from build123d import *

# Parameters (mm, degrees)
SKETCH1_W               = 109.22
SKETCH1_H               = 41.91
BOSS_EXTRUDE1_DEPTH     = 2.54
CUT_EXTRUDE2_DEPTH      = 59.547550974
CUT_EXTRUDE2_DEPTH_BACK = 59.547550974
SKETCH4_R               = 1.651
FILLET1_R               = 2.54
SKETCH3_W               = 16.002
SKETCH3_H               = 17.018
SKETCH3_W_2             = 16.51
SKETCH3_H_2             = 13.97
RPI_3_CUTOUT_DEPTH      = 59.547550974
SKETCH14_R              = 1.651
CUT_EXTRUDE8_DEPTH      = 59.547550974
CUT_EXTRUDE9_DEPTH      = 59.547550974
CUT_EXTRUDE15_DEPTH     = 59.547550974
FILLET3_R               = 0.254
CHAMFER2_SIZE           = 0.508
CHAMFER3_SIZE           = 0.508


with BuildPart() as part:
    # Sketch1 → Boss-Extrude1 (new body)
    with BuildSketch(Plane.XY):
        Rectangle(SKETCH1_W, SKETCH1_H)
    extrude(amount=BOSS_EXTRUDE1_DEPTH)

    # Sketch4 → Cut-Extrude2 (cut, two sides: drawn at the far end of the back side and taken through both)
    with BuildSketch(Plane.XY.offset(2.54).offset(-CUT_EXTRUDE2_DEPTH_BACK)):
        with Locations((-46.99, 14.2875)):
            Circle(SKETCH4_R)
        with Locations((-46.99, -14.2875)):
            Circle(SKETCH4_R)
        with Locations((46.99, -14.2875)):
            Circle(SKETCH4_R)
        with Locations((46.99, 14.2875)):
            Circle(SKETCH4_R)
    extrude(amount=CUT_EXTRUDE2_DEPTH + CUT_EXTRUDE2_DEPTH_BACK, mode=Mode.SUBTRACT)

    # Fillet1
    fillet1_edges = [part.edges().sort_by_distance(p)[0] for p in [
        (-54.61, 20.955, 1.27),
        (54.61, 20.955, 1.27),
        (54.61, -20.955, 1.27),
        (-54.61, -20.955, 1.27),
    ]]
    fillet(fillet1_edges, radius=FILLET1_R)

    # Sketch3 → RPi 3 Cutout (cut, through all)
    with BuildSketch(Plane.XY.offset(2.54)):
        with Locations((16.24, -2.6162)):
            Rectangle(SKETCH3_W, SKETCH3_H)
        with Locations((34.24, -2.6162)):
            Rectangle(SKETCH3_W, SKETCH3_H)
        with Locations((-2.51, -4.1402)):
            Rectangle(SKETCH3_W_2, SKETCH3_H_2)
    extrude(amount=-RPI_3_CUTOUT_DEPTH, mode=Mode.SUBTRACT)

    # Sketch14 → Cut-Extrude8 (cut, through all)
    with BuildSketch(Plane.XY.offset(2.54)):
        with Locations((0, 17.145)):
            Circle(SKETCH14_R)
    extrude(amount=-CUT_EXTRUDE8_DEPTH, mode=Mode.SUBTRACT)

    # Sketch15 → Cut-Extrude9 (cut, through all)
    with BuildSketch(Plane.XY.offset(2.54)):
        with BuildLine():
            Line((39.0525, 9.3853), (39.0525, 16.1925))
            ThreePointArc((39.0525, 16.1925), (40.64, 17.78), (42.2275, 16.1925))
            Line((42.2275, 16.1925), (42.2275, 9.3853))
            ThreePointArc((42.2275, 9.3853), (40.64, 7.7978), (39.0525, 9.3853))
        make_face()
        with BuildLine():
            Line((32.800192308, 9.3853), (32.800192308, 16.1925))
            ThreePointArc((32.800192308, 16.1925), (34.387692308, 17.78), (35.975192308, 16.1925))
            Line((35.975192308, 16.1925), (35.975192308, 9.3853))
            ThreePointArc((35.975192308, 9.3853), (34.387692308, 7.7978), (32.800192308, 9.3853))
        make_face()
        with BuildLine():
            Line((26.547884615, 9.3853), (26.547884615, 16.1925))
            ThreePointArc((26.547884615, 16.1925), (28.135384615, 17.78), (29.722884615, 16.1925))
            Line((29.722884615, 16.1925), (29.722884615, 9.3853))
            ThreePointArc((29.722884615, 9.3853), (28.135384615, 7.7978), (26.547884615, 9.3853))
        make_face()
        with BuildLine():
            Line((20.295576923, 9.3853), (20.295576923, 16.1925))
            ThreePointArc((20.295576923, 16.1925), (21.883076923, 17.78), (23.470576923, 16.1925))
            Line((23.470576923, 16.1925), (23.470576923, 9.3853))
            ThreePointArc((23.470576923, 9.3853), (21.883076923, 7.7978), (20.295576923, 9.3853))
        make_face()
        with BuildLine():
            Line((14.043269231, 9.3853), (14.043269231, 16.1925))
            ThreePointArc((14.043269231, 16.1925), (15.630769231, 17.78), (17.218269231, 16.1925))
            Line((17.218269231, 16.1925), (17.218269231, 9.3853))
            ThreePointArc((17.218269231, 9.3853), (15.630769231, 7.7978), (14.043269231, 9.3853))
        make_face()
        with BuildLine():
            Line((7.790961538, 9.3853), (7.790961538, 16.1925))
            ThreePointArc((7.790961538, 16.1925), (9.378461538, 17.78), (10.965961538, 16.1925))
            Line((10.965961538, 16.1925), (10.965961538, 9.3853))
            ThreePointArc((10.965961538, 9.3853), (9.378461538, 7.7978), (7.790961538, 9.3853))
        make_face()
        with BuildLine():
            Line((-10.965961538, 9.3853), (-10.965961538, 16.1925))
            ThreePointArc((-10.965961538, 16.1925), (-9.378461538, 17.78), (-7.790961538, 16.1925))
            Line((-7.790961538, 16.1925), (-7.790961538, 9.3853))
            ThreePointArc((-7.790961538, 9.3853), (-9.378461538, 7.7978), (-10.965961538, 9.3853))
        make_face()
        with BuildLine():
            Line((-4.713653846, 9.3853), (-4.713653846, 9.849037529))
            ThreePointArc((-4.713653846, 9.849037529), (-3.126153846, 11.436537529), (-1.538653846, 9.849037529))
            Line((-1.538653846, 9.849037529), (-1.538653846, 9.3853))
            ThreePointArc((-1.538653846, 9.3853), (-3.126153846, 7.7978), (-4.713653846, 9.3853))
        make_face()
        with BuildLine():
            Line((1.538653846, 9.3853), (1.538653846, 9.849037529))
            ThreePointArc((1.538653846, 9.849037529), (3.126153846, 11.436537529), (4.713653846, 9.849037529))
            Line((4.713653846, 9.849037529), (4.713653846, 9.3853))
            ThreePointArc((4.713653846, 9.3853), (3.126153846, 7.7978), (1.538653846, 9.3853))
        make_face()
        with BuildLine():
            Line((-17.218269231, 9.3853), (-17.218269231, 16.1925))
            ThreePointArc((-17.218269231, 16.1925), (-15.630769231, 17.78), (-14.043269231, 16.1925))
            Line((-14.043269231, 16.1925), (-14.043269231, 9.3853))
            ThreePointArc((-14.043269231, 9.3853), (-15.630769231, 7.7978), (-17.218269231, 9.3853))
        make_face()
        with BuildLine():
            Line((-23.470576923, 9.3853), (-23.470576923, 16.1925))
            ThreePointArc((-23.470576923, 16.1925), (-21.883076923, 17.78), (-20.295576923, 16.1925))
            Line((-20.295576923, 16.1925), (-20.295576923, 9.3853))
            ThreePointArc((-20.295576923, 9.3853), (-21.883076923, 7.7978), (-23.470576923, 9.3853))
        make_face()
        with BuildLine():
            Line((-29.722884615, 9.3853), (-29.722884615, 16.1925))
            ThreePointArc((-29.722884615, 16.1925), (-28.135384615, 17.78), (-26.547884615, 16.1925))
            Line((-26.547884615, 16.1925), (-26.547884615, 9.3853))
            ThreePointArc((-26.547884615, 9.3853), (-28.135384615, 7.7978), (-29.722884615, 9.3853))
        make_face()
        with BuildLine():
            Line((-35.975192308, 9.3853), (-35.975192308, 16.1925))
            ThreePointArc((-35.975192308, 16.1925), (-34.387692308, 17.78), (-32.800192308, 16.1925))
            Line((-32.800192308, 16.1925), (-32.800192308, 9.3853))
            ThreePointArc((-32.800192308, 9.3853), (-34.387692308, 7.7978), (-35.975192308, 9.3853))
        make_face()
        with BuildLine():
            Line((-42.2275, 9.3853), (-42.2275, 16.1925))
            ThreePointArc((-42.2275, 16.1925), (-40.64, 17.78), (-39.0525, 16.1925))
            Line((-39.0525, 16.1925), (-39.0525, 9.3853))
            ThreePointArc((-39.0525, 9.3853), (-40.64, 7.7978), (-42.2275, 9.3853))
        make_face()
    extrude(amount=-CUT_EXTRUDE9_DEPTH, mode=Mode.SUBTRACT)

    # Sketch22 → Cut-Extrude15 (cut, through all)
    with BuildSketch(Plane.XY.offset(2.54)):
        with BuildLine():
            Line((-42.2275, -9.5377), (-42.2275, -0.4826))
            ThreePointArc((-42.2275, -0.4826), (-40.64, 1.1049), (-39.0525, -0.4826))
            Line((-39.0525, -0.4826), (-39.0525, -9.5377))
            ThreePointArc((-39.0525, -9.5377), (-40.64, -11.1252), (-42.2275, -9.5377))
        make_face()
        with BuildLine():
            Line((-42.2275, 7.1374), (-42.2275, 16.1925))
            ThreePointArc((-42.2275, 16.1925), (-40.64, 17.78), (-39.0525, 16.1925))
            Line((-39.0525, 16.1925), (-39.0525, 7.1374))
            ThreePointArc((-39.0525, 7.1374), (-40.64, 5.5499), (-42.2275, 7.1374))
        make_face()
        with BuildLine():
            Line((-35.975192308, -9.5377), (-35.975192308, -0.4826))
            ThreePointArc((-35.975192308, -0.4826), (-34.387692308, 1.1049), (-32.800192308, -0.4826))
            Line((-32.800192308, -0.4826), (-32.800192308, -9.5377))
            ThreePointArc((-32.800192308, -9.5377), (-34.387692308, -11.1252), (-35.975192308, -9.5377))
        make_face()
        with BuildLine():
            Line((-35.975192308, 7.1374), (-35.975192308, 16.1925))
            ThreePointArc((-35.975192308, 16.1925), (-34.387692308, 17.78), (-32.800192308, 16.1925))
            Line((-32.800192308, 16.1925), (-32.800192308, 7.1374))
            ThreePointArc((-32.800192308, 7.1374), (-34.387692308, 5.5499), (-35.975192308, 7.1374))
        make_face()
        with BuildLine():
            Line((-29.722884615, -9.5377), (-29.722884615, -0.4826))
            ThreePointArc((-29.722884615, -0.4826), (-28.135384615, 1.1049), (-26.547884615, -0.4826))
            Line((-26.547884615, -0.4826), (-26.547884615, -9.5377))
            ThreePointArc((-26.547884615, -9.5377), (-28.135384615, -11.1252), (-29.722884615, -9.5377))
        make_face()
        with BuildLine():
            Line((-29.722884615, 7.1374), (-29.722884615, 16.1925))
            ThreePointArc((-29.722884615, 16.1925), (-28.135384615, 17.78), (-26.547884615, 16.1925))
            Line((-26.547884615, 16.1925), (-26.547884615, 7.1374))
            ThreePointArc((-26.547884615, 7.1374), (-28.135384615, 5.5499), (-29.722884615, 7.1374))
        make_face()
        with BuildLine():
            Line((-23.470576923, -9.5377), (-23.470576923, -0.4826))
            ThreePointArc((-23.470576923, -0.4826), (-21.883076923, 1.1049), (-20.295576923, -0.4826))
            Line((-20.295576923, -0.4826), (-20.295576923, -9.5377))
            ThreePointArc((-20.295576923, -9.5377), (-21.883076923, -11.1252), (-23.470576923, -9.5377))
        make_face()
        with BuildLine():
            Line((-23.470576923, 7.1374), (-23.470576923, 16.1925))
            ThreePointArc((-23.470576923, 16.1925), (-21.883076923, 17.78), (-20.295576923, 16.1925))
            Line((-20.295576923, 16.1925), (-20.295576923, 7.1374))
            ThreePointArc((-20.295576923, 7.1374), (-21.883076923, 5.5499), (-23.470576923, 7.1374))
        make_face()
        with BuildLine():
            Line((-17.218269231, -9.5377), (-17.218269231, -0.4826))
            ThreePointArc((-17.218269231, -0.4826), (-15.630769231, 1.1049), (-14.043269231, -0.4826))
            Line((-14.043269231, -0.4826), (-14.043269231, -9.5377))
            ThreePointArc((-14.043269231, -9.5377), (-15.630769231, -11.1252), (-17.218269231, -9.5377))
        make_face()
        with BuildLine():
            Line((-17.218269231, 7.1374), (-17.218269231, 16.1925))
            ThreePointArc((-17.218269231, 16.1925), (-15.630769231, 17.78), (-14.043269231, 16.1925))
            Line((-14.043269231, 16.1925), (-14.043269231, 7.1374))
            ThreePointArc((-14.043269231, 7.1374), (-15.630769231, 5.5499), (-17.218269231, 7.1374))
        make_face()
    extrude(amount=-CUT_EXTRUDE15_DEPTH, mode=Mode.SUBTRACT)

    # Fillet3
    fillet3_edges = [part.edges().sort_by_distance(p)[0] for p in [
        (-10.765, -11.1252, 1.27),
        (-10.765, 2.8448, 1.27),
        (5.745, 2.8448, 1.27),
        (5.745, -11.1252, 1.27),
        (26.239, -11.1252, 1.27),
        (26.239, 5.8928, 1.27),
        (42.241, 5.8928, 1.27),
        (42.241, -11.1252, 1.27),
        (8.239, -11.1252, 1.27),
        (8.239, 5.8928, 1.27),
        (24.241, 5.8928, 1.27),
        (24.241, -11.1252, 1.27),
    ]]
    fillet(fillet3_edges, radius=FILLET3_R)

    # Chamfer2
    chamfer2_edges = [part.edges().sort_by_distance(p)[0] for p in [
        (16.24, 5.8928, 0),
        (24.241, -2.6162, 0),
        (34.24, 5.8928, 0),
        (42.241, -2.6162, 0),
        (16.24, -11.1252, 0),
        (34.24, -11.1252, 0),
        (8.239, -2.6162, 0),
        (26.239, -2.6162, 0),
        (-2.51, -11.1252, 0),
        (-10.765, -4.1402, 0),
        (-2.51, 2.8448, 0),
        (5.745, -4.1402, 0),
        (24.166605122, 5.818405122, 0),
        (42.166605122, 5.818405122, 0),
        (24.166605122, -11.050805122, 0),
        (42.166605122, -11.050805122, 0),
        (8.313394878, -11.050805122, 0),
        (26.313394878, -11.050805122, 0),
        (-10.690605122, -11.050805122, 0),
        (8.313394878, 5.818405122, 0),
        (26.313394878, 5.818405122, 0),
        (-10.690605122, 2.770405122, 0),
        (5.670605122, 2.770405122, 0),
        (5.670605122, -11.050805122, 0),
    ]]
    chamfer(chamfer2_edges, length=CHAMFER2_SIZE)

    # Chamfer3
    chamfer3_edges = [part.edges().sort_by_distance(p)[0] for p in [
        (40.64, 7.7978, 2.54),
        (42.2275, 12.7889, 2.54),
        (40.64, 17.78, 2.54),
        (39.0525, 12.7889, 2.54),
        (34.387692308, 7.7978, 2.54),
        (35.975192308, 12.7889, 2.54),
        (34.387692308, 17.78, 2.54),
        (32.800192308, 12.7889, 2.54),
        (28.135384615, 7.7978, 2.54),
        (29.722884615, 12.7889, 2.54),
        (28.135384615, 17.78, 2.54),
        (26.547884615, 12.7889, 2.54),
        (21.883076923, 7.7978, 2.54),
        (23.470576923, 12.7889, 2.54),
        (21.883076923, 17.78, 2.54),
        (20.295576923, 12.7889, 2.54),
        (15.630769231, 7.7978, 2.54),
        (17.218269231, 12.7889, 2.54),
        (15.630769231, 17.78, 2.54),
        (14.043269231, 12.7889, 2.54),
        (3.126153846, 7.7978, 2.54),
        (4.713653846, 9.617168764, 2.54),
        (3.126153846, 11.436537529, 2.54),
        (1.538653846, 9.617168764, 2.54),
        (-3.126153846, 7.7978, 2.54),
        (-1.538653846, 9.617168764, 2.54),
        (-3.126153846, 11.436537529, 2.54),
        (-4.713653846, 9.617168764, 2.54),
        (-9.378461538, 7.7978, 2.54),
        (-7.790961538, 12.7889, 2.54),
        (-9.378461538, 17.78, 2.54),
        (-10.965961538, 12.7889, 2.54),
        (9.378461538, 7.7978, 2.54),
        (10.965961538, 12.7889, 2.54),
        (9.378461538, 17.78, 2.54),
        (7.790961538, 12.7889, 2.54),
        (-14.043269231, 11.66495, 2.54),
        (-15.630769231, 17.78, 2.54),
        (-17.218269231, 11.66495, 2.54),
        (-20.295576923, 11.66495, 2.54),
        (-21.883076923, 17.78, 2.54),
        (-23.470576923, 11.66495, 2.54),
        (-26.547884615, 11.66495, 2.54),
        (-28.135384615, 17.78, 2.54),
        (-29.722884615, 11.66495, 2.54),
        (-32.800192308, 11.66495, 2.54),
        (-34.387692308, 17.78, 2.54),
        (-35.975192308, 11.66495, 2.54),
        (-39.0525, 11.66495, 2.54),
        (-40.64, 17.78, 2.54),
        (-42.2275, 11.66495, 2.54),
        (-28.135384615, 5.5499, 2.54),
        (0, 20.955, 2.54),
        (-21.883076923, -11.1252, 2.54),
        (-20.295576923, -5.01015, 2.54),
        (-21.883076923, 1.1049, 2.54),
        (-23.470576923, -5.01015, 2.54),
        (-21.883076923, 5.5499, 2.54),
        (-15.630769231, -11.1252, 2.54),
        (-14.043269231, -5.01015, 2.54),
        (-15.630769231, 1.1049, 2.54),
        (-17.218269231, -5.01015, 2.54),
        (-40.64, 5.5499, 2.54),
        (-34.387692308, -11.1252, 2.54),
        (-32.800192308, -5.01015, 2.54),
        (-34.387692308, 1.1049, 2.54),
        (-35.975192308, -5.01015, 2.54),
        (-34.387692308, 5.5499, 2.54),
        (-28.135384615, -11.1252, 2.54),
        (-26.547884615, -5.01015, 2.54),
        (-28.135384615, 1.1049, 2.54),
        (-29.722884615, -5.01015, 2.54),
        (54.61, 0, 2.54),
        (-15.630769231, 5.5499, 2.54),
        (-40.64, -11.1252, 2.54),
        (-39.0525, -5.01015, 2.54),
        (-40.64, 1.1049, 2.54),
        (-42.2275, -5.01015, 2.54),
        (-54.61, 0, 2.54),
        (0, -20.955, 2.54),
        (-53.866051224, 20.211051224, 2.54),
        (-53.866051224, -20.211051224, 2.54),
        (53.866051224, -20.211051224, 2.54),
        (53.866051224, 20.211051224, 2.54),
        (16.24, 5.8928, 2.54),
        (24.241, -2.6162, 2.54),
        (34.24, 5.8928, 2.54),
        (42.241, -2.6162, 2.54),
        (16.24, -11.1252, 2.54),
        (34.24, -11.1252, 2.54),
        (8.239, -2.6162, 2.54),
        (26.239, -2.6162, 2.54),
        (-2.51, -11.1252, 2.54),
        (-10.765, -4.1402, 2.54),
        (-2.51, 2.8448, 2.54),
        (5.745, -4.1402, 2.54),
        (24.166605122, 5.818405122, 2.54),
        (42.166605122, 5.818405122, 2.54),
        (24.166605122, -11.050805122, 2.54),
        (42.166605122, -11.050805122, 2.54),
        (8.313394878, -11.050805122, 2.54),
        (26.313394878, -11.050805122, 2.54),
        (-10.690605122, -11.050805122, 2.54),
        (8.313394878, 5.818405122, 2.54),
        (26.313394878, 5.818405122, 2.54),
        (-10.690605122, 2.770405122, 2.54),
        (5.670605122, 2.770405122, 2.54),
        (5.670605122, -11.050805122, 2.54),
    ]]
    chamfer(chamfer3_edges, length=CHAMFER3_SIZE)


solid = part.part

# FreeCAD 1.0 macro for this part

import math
import FreeCAD as App
import Part
import Sketcher
Q = App.Units.Quantity


def edges_at(feature, points):
    """Names of the edges that pass closest to the given points."""
    edges = feature.Shape.Edges
    near = lambda p: min(range(len(edges)), key=lambda i: edges[i].distToShape(Part.Vertex(*p))[0])
    return sorted({f"Edge{near(p) + 1}" for p in points})

doc = App.newDocument("Part")
body = doc.addObject("PartDesign::Body", "Body")

# Sketch on XY plane
sketch1 = body.newObject("Sketcher::SketchObject", "Sketch")
sketch1.AttachmentSupport = (doc.getObject("XY_Plane"), [""])
sketch1.MapMode = "FlatFace"
sketch1.addGeometry([
    Part.LineSegment(App.Vector(-55, 21, 0), App.Vector(-55, -21, 0)),
    Part.LineSegment(App.Vector(-55, -21, 0), App.Vector(55, -21, 0)),
    Part.LineSegment(App.Vector(55, -21, 0), App.Vector(55, 21, 0)),
    Part.LineSegment(App.Vector(55, 21, 0), App.Vector(-55, 21, 0)),
], False)
sketch1.addConstraint([
    Sketcher.Constraint("Coincident", 0, 2, 1, 1),
    Sketcher.Constraint("Coincident", 1, 2, 2, 1),
    Sketcher.Constraint("Coincident", 2, 2, 3, 1),
    Sketcher.Constraint("Coincident", 3, 2, 0, 1),
    Sketcher.Constraint("Vertical", 0),
    Sketcher.Constraint("Horizontal", 1),
    Sketcher.Constraint("Vertical", 2),
    Sketcher.Constraint("Horizontal", 3),
    Sketcher.Constraint("Symmetric", 0, 2, 2, 2, -1, 1),
    Sketcher.Constraint("DistanceX", 1, 1, 1, 2, Q("4.3 in")),
    Sketcher.Constraint("DistanceY", 0, 2, 0, 1, Q("1.65 in")),
])
pad1 = body.newObject("PartDesign::Pad", "Pad")
pad1.Profile = sketch1
pad1.Length = Q("0.1 in")

# Sketch on XY plane
sketch2 = body.newObject("Sketcher::SketchObject", "Sketch001")
sketch2.AttachmentSupport = (doc.getObject("XY_Plane"), [""])
sketch2.MapMode = "FlatFace"
sketch2.AttachmentOffset = App.Placement(App.Vector(0, 0, 0.1 * 25.4), App.Rotation())
sketch2.addGeometry([
    Part.Circle(App.Vector(-47, 14.3, 0), App.Vector(0, 0, 1), 1.7),
    Part.Circle(App.Vector(-47, -14.3, 0), App.Vector(0, 0, 1), 1.7),
    Part.Circle(App.Vector(47, -14.3, 0), App.Vector(0, 0, 1), 1.7),
    Part.Circle(App.Vector(47, 14.3, 0), App.Vector(0, 0, 1), 1.7),
], False)
sketch2.addConstraint([
    Sketcher.Constraint("Equal", 0, 1),
    Sketcher.Constraint("Equal", 1, 2),
    Sketcher.Constraint("Equal", 2, 3),
    Sketcher.Constraint("Symmetric", 0, 3, 2, 3, -1, 1),
    Sketcher.Constraint("Symmetric", 1, 3, 3, 3, -1, 1),
    Sketcher.Constraint("Symmetric", 1, 3, 2, 3, -2),
    Sketcher.Constraint("Diameter", 0, Q("0.13 in")),
    Sketcher.Constraint("DistanceX", 1, 3, 2, 3, Q("3.7 in")),
    Sketcher.Constraint("DistanceY", -1, 1, 0, 3, Q("0.5625 in")),
])
pocket1 = body.newObject("PartDesign::Pocket", "Pocket")
pocket1.Profile = sketch2
pocket1.Type = "ThroughAll"
pocket1.Midplane = True
doc.recompute()

fillet = body.newObject("PartDesign::Fillet", "Fillet")
fillet.Base = (pocket1, edges_at(pocket1, [
    (-54.61, 20.955, 1.27),
    (54.61, 20.955, 1.27),
    (54.61, -20.955, 1.27),
    (-54.61, -20.955, 1.27),
]))
fillet.Radius = Q("0.1 in")

# Sketch on XY plane
sketch3 = body.newObject("Sketcher::SketchObject", "Sketch002")
sketch3.AttachmentSupport = (doc.getObject("XY_Plane"), [""])
sketch3.MapMode = "FlatFace"
sketch3.AttachmentOffset = App.Placement(App.Vector(0, 0, 0.1 * 25.4), App.Rotation())
sketch3.addGeometry([
    Part.LineSegment(App.Vector(8, 6, 0), App.Vector(8, -11, 0)),  # 0
    Part.LineSegment(App.Vector(8, -11, 0), App.Vector(24, -11, 0)),  # 1
    Part.LineSegment(App.Vector(24, -11, 0), App.Vector(24, 6, 0)),  # 2
    Part.LineSegment(App.Vector(24, 6, 0), App.Vector(8, 6, 0)),  # 3
    Part.LineSegment(App.Vector(26, 6, 0), App.Vector(26, -11, 0)),  # 4
    Part.LineSegment(App.Vector(26, -11, 0), App.Vector(42, -11, 0)),  # 5
    Part.LineSegment(App.Vector(42, -11, 0), App.Vector(42, 6, 0)),  # 6
    Part.LineSegment(App.Vector(42, 6, 0), App.Vector(26, 6, 0)),  # 7
    Part.LineSegment(App.Vector(-11, 3, 0), App.Vector(-11, -11, 0)),  # 8
    Part.LineSegment(App.Vector(-11, -11, 0), App.Vector(6, -11, 0)),  # 9
    Part.LineSegment(App.Vector(6, -11, 0), App.Vector(6, 3, 0)),  # 10
    Part.LineSegment(App.Vector(6, 3, 0), App.Vector(-11, 3, 0)),  # 11
], False)
sketch3.addConstraint([
    Sketcher.Constraint("Coincident", 0, 2, 1, 1),
    Sketcher.Constraint("Coincident", 1, 2, 2, 1),
    Sketcher.Constraint("Coincident", 2, 2, 3, 1),
    Sketcher.Constraint("Coincident", 3, 2, 0, 1),
    Sketcher.Constraint("Coincident", 4, 2, 5, 1),
    Sketcher.Constraint("Coincident", 5, 2, 6, 1),
    Sketcher.Constraint("Coincident", 6, 2, 7, 1),
    Sketcher.Constraint("Coincident", 7, 2, 4, 1),
    Sketcher.Constraint("Coincident", 8, 2, 9, 1),
    Sketcher.Constraint("Coincident", 9, 2, 10, 1),
    Sketcher.Constraint("Coincident", 10, 2, 11, 1),
    Sketcher.Constraint("Coincident", 11, 2, 8, 1),
    Sketcher.Constraint("Vertical", 0),
    Sketcher.Constraint("Horizontal", 1),
    Sketcher.Constraint("Vertical", 2),
    Sketcher.Constraint("Horizontal", 3),
    Sketcher.Constraint("Vertical", 4),
    Sketcher.Constraint("Horizontal", 5),
    Sketcher.Constraint("Vertical", 6),
    Sketcher.Constraint("Horizontal", 7),
    Sketcher.Constraint("Vertical", 8),
    Sketcher.Constraint("Horizontal", 9),
    Sketcher.Constraint("Vertical", 10),
    Sketcher.Constraint("Horizontal", 11),
    Sketcher.Constraint("Horizontal", 1, 2, 4, 2),
    Sketcher.Constraint("Horizontal", 3, 2, 6, 2),
    Sketcher.Constraint("Horizontal", 5, 2, 8, 2),
    Sketcher.Constraint("Equal", 3, 5),
    Sketcher.Constraint("DistanceX", 1, 1, 1, 2, Q("0.63 in")),
    Sketcher.Constraint("DistanceX", 9, 1, 9, 2, Q("0.65 in")),
    Sketcher.Constraint("DistanceY", 0, 2, 0, 1, Q("0.67 in")),
    Sketcher.Constraint("DistanceY", 8, 2, 8, 1, Q("0.55 in")),
    Sketcher.Constraint("DistanceY", 0, 2, -1, 1, Q("0.438 in")),
    Sketcher.Constraint("DistanceX", -1, 1, 0, 2, Q("8.239 mm")),
    Sketcher.Constraint("DistanceX", -1, 1, 4, 2, Q("26.239 mm")),
    Sketcher.Constraint("DistanceX", 8, 2, -1, 1, Q("10.765 mm")),
])
pocket2 = body.newObject("PartDesign::Pocket", "Pocket001")
pocket2.Profile = sketch3
pocket2.Type = "ThroughAll"

# Sketch on XY plane
sketch4 = body.newObject("Sketcher::SketchObject", "Sketch003")
sketch4.AttachmentSupport = (doc.getObject("XY_Plane"), [""])
sketch4.MapMode = "FlatFace"
sketch4.AttachmentOffset = App.Placement(App.Vector(0, 0, 0.1 * 25.4), App.Rotation())
sketch4.addGeometry(Part.Circle(App.Vector(0, 17.1, 0), App.Vector(0, 0, 1), 1.7), False)
sketch4.addConstraint([
    Sketcher.Constraint("PointOnObject", 0, 3, -2),
    Sketcher.Constraint("Diameter", 0, Q("0.13 in")),
    Sketcher.Constraint("DistanceY", -1, 1, 0, 3, Q("0.675 in")),
])
pocket3 = body.newObject("PartDesign::Pocket", "Pocket002")
pocket3.Profile = sketch4
pocket3.Type = "ThroughAll"

# Sketch on XY plane
sketch5 = body.newObject("Sketcher::SketchObject", "Sketch004")
sketch5.AttachmentSupport = (doc.getObject("XY_Plane"), [""])
sketch5.MapMode = "FlatFace"
sketch5.AttachmentOffset = App.Placement(App.Vector(0, 0, 0.1 * 25.4), App.Rotation())
sketch5.addGeometry([
    Part.LineSegment(App.Vector(39.05, 16.19, 0), App.Vector(39.05, 9.39, 0)),  # 0
    Part.ArcOfCircle(Part.Circle(App.Vector(40.64, 9.39, 0), App.Vector(0, 0, 1), 1.59), math.radians(180), math.radians(360)),  # 1
    Part.LineSegment(App.Vector(42.23, 9.39, 0), App.Vector(42.23, 16.19, 0)),  # 2
    Part.ArcOfCircle(Part.Circle(App.Vector(40.64, 16.19, 0), App.Vector(0, 0, 1), 1.59), math.radians(0), math.radians(180)),  # 3
    Part.LineSegment(App.Vector(32.8, 16.19, 0), App.Vector(32.8, 9.39, 0)),  # 4
    Part.ArcOfCircle(Part.Circle(App.Vector(34.39, 9.39, 0), App.Vector(0, 0, 1), 1.59), math.radians(180), math.radians(360)),  # 5
    Part.LineSegment(App.Vector(35.98, 9.39, 0), App.Vector(35.98, 16.19, 0)),  # 6
    Part.ArcOfCircle(Part.Circle(App.Vector(34.39, 16.19, 0), App.Vector(0, 0, 1), 1.59), math.radians(0), math.radians(180)),  # 7
    Part.LineSegment(App.Vector(26.55, 16.19, 0), App.Vector(26.55, 9.39, 0)),  # 8
    Part.ArcOfCircle(Part.Circle(App.Vector(28.14, 9.39, 0), App.Vector(0, 0, 1), 1.59), math.radians(180), math.radians(360)),  # 9
    Part.LineSegment(App.Vector(29.72, 9.39, 0), App.Vector(29.72, 16.19, 0)),  # 10
    Part.ArcOfCircle(Part.Circle(App.Vector(28.14, 16.19, 0), App.Vector(0, 0, 1), 1.59), math.radians(0), math.radians(180)),  # 11
    Part.LineSegment(App.Vector(20.3, 16.19, 0), App.Vector(20.3, 9.39, 0)),  # 12
    Part.ArcOfCircle(Part.Circle(App.Vector(21.88, 9.39, 0), App.Vector(0, 0, 1), 1.59), math.radians(180), math.radians(360)),  # 13
    Part.LineSegment(App.Vector(23.47, 9.39, 0), App.Vector(23.47, 16.19, 0)),  # 14
    Part.ArcOfCircle(Part.Circle(App.Vector(21.88, 16.19, 0), App.Vector(0, 0, 1), 1.59), math.radians(0), math.radians(180)),  # 15
    Part.LineSegment(App.Vector(14.04, 16.19, 0), App.Vector(14.04, 9.39, 0)),  # 16
    Part.ArcOfCircle(Part.Circle(App.Vector(15.63, 9.39, 0), App.Vector(0, 0, 1), 1.59), math.radians(180), math.radians(360)),  # 17
    Part.LineSegment(App.Vector(17.22, 9.39, 0), App.Vector(17.22, 16.19, 0)),  # 18
    Part.ArcOfCircle(Part.Circle(App.Vector(15.63, 16.19, 0), App.Vector(0, 0, 1), 1.59), math.radians(0), math.radians(180)),  # 19
    Part.LineSegment(App.Vector(7.79, 16.19, 0), App.Vector(7.79, 9.39, 0)),  # 20
    Part.ArcOfCircle(Part.Circle(App.Vector(9.38, 9.39, 0), App.Vector(0, 0, 1), 1.59), math.radians(180), math.radians(360)),  # 21
    Part.LineSegment(App.Vector(10.97, 9.39, 0), App.Vector(10.97, 16.19, 0)),  # 22
    Part.ArcOfCircle(Part.Circle(App.Vector(9.38, 16.19, 0), App.Vector(0, 0, 1), 1.59), math.radians(0), math.radians(180)),  # 23
    Part.LineSegment(App.Vector(-10.97, 16.19, 0), App.Vector(-10.97, 9.39, 0)),  # 24
    Part.ArcOfCircle(Part.Circle(App.Vector(-9.38, 9.39, 0), App.Vector(0, 0, 1), 1.59), math.radians(180), math.radians(360)),  # 25
    Part.LineSegment(App.Vector(-7.79, 9.39, 0), App.Vector(-7.79, 16.19, 0)),  # 26
    Part.ArcOfCircle(Part.Circle(App.Vector(-9.38, 16.19, 0), App.Vector(0, 0, 1), 1.59), math.radians(0), math.radians(180)),  # 27
    Part.LineSegment(App.Vector(-4.71, 9.85, 0), App.Vector(-4.71, 9.39, 0)),  # 28
    Part.ArcOfCircle(Part.Circle(App.Vector(-3.13, 9.39, 0), App.Vector(0, 0, 1), 1.59), math.radians(180), math.radians(360)),  # 29
    Part.LineSegment(App.Vector(-1.54, 9.39, 0), App.Vector(-1.54, 9.85, 0)),  # 30
    Part.ArcOfCircle(Part.Circle(App.Vector(-3.13, 9.85, 0), App.Vector(0, 0, 1), 1.59), math.radians(0), math.radians(180)),  # 31
    Part.LineSegment(App.Vector(1.54, 9.85, 0), App.Vector(1.54, 9.39, 0)),  # 32
    Part.ArcOfCircle(Part.Circle(App.Vector(3.13, 9.39, 0), App.Vector(0, 0, 1), 1.59), math.radians(180), math.radians(360)),  # 33
    Part.LineSegment(App.Vector(4.71, 9.39, 0), App.Vector(4.71, 9.85, 0)),  # 34
    Part.ArcOfCircle(Part.Circle(App.Vector(3.13, 9.85, 0), App.Vector(0, 0, 1), 1.59), math.radians(0), math.radians(180)),  # 35
    Part.LineSegment(App.Vector(-17.22, 16.19, 0), App.Vector(-17.22, 9.39, 0)),  # 36
    Part.ArcOfCircle(Part.Circle(App.Vector(-15.63, 9.39, 0), App.Vector(0, 0, 1), 1.59), math.radians(180), math.radians(360)),  # 37
    Part.LineSegment(App.Vector(-14.04, 9.39, 0), App.Vector(-14.04, 16.19, 0)),  # 38
    Part.ArcOfCircle(Part.Circle(App.Vector(-15.63, 16.19, 0), App.Vector(0, 0, 1), 1.59), math.radians(0), math.radians(180)),  # 39
    Part.LineSegment(App.Vector(-23.47, 16.19, 0), App.Vector(-23.47, 9.39, 0)),  # 40
    Part.ArcOfCircle(Part.Circle(App.Vector(-21.88, 9.39, 0), App.Vector(0, 0, 1), 1.59), math.radians(180), math.radians(360)),  # 41
    Part.LineSegment(App.Vector(-20.3, 9.39, 0), App.Vector(-20.3, 16.19, 0)),  # 42
    Part.ArcOfCircle(Part.Circle(App.Vector(-21.88, 16.19, 0), App.Vector(0, 0, 1), 1.59), math.radians(0), math.radians(180)),  # 43
    Part.LineSegment(App.Vector(-29.72, 16.19, 0), App.Vector(-29.72, 9.39, 0)),  # 44
    Part.ArcOfCircle(Part.Circle(App.Vector(-28.14, 9.39, 0), App.Vector(0, 0, 1), 1.59), math.radians(180), math.radians(360)),  # 45
    Part.LineSegment(App.Vector(-26.55, 9.39, 0), App.Vector(-26.55, 16.19, 0)),  # 46
    Part.ArcOfCircle(Part.Circle(App.Vector(-28.14, 16.19, 0), App.Vector(0, 0, 1), 1.59), math.radians(0), math.radians(180)),  # 47
    Part.LineSegment(App.Vector(-35.98, 16.19, 0), App.Vector(-35.98, 9.39, 0)),  # 48
    Part.ArcOfCircle(Part.Circle(App.Vector(-34.39, 9.39, 0), App.Vector(0, 0, 1), 1.59), math.radians(180), math.radians(360)),  # 49
    Part.LineSegment(App.Vector(-32.8, 9.39, 0), App.Vector(-32.8, 16.19, 0)),  # 50
    Part.ArcOfCircle(Part.Circle(App.Vector(-34.39, 16.19, 0), App.Vector(0, 0, 1), 1.59), math.radians(0), math.radians(180)),  # 51
    Part.LineSegment(App.Vector(-42.23, 16.19, 0), App.Vector(-42.23, 9.39, 0)),  # 52
    Part.ArcOfCircle(Part.Circle(App.Vector(-40.64, 9.39, 0), App.Vector(0, 0, 1), 1.59), math.radians(180), math.radians(360)),  # 53
    Part.LineSegment(App.Vector(-39.05, 9.39, 0), App.Vector(-39.05, 16.19, 0)),  # 54
    Part.ArcOfCircle(Part.Circle(App.Vector(-40.64, 16.19, 0), App.Vector(0, 0, 1), 1.59), math.radians(0), math.radians(180)),  # 55
], False)
sketch5.addConstraint([
    Sketcher.Constraint("Tangent", 0, 2, 1, 1),
    Sketcher.Constraint("Tangent", 1, 2, 2, 1),
    Sketcher.Constraint("Tangent", 2, 2, 3, 1),
    Sketcher.Constraint("Tangent", 3, 2, 0, 1),
    Sketcher.Constraint("Tangent", 4, 2, 5, 1),
    Sketcher.Constraint("Tangent", 5, 2, 6, 1),
    Sketcher.Constraint("Tangent", 6, 2, 7, 1),
    Sketcher.Constraint("Tangent", 7, 2, 4, 1),
    Sketcher.Constraint("Tangent", 8, 2, 9, 1),
    Sketcher.Constraint("Tangent", 9, 2, 10, 1),
    Sketcher.Constraint("Tangent", 10, 2, 11, 1),
    Sketcher.Constraint("Tangent", 11, 2, 8, 1),
    Sketcher.Constraint("Tangent", 12, 2, 13, 1),
    Sketcher.Constraint("Tangent", 13, 2, 14, 1),
    Sketcher.Constraint("Tangent", 14, 2, 15, 1),
    Sketcher.Constraint("Tangent", 15, 2, 12, 1),
    Sketcher.Constraint("Tangent", 16, 2, 17, 1),
    Sketcher.Constraint("Tangent", 17, 2, 18, 1),
    Sketcher.Constraint("Tangent", 18, 2, 19, 1),
    Sketcher.Constraint("Tangent", 19, 2, 16, 1),
    Sketcher.Constraint("Tangent", 20, 2, 21, 1),
    Sketcher.Constraint("Tangent", 21, 2, 22, 1),
    Sketcher.Constraint("Tangent", 22, 2, 23, 1),
    Sketcher.Constraint("Tangent", 23, 2, 20, 1),
    Sketcher.Constraint("Tangent", 24, 2, 25, 1),
    Sketcher.Constraint("Tangent", 25, 2, 26, 1),
    Sketcher.Constraint("Tangent", 26, 2, 27, 1),
    Sketcher.Constraint("Tangent", 27, 2, 24, 1),
    Sketcher.Constraint("Tangent", 28, 2, 29, 1),
    Sketcher.Constraint("Tangent", 29, 2, 30, 1),
    Sketcher.Constraint("Tangent", 30, 2, 31, 1),
    Sketcher.Constraint("Tangent", 31, 2, 28, 1),
    Sketcher.Constraint("Tangent", 32, 2, 33, 1),
    Sketcher.Constraint("Tangent", 33, 2, 34, 1),
    Sketcher.Constraint("Tangent", 34, 2, 35, 1),
    Sketcher.Constraint("Tangent", 35, 2, 32, 1),
    Sketcher.Constraint("Tangent", 36, 2, 37, 1),
    Sketcher.Constraint("Tangent", 37, 2, 38, 1),
    Sketcher.Constraint("Tangent", 38, 2, 39, 1),
    Sketcher.Constraint("Tangent", 39, 2, 36, 1),
    Sketcher.Constraint("Tangent", 40, 2, 41, 1),
    Sketcher.Constraint("Tangent", 41, 2, 42, 1),
    Sketcher.Constraint("Tangent", 42, 2, 43, 1),
    Sketcher.Constraint("Tangent", 43, 2, 40, 1),
    Sketcher.Constraint("Tangent", 44, 2, 45, 1),
    Sketcher.Constraint("Tangent", 45, 2, 46, 1),
    Sketcher.Constraint("Tangent", 46, 2, 47, 1),
    Sketcher.Constraint("Tangent", 47, 2, 44, 1),
    Sketcher.Constraint("Tangent", 48, 2, 49, 1),
    Sketcher.Constraint("Tangent", 49, 2, 50, 1),
    Sketcher.Constraint("Tangent", 50, 2, 51, 1),
    Sketcher.Constraint("Tangent", 51, 2, 48, 1),
    Sketcher.Constraint("Tangent", 52, 2, 53, 1),
    Sketcher.Constraint("Tangent", 53, 2, 54, 1),
    Sketcher.Constraint("Tangent", 54, 2, 55, 1),
    Sketcher.Constraint("Tangent", 55, 2, 52, 1),
    Sketcher.Constraint("Vertical", 0),
    Sketcher.Constraint("Vertical", 2),
    Sketcher.Constraint("Vertical", 4),
    Sketcher.Constraint("Vertical", 6),
    Sketcher.Constraint("Vertical", 8),
    Sketcher.Constraint("Vertical", 10),
    Sketcher.Constraint("Vertical", 12),
    Sketcher.Constraint("Vertical", 14),
    Sketcher.Constraint("Vertical", 16),
    Sketcher.Constraint("Vertical", 18),
    Sketcher.Constraint("Vertical", 20),
    Sketcher.Constraint("Vertical", 22),
    Sketcher.Constraint("Vertical", 24),
    Sketcher.Constraint("Vertical", 26),
    Sketcher.Constraint("Vertical", 28),
    Sketcher.Constraint("Vertical", 30),
    Sketcher.Constraint("Vertical", 32),
    Sketcher.Constraint("Vertical", 34),
    Sketcher.Constraint("Vertical", 36),
    Sketcher.Constraint("Vertical", 38),
    Sketcher.Constraint("Vertical", 40),
    Sketcher.Constraint("Vertical", 42),
    Sketcher.Constraint("Vertical", 44),
    Sketcher.Constraint("Vertical", 46),
    Sketcher.Constraint("Vertical", 48),
    Sketcher.Constraint("Vertical", 50),
    Sketcher.Constraint("Vertical", 52),
    Sketcher.Constraint("Vertical", 54),
    Sketcher.Constraint("Equal", 3, 5),
    Sketcher.Constraint("Equal", 7, 9),
    Sketcher.Constraint("Equal", 11, 13),
    Sketcher.Constraint("Equal", 15, 17),
    Sketcher.Constraint("Equal", 19, 21),
    Sketcher.Constraint("Equal", 23, 25),
    Sketcher.Constraint("Equal", 27, 29),
    Sketcher.Constraint("Equal", 31, 33),
    Sketcher.Constraint("Equal", 35, 37),
    Sketcher.Constraint("Equal", 39, 41),
    Sketcher.Constraint("Equal", 43, 45),
    Sketcher.Constraint("Equal", 47, 49),
    Sketcher.Constraint("Equal", 51, 53),
    Sketcher.Constraint("Symmetric", 21, 3, 25, 3, -2),
    Sketcher.Constraint("Symmetric", 29, 3, 33, 3, -2),
    Sketcher.Constraint("Symmetric", 17, 3, 37, 3, -2),
    Sketcher.Constraint("Symmetric", 13, 3, 41, 3, -2),
    Sketcher.Constraint("Symmetric", 9, 3, 45, 3, -2),
    Sketcher.Constraint("Symmetric", 5, 3, 49, 3, -2),
    Sketcher.Constraint("Symmetric", 1, 3, 53, 3, -2),
    Sketcher.Constraint("Horizontal", 1, 3, 5, 3),
    Sketcher.Constraint("Horizontal", 3, 3, 7, 3),
    Sketcher.Constraint("Horizontal", 5, 3, 9, 3),
    Sketcher.Constraint("Horizontal", 7, 3, 11, 3),
    Sketcher.Constraint("Horizontal", 9, 3, 13, 3),
    Sketcher.Constraint("Horizontal", 11, 3, 15, 3),
    Sketcher.Constraint("Horizontal", 13, 3, 17, 3),
    Sketcher.Constraint("Horizontal", 15, 3, 19, 3),
    Sketcher.Constraint("Horizontal", 17, 3, 21, 3),
    Sketcher.Constraint("Horizontal", 19, 3, 23, 3),
    Sketcher.Constraint("Horizontal", 23, 3, 27, 3),
    Sketcher.Constraint("Horizontal", 25, 3, 29, 3),
    Sketcher.Constraint("Horizontal", 31, 3, 35, 3),
    Sketcher.Constraint("Horizontal", 27, 3, 39, 3),
    Sketcher.Constraint("Horizontal", 39, 3, 43, 3),
    Sketcher.Constraint("Horizontal", 43, 3, 47, 3),
    Sketcher.Constraint("Horizontal", 47, 3, 51, 3),
    Sketcher.Constraint("Horizontal", 51, 3, 55, 3),
    Sketcher.Constraint("Radius", 1, Q("0.0625 in")),
    Sketcher.Constraint("DistanceX", -1, 1, 1, 3, Q("1.6 in")),
    Sketcher.Constraint("DistanceY", 0, 2, 0, 1, Q("0.268 in")),
    Sketcher.Constraint("DistanceY", -1, 1, 1, 3, Q("0.3695 in")),
    Sketcher.Constraint("DistanceY", 28, 2, 28, 1, Q("0.463738 mm")),
    Sketcher.Constraint("DistanceX", -1, 1, 17, 3, Q("15.630769 mm")),
    Sketcher.Constraint("DistanceX", -1, 1, 21, 3, Q("9.378462 mm")),
    Sketcher.Constraint("DistanceX", -1, 1, 5, 3, Q("34.387692 mm")),
    Sketcher.Constraint("DistanceX", -1, 1, 9, 3, Q("28.135385 mm")),
    Sketcher.Constraint("DistanceX", -1, 1, 13, 3, Q("21.883077 mm")),
    Sketcher.Constraint("DistanceX", 29, 3, -1, 1, Q("3.126154 mm")),
])
pocket4 = body.newObject("PartDesign::Pocket", "Pocket003")
pocket4.Profile = sketch5
pocket4.Type = "ThroughAll"

# Sketch on XY plane
sketch6 = body.newObject("Sketcher::SketchObject", "Sketch005")
sketch6.AttachmentSupport = (doc.getObject("XY_Plane"), [""])
sketch6.MapMode = "FlatFace"
sketch6.AttachmentOffset = App.Placement(App.Vector(0, 0, 0.1 * 25.4), App.Rotation())
sketch6.addGeometry([
    Part.LineSegment(App.Vector(-42.2, -0.5, 0), App.Vector(-42.2, -9.5, 0)),  # 0
    Part.ArcOfCircle(Part.Circle(App.Vector(-40.6, -9.5, 0), App.Vector(0, 0, 1), 1.6), math.radians(180), math.radians(360)),  # 1
    Part.LineSegment(App.Vector(-39.1, -9.5, 0), App.Vector(-39.1, -0.5, 0)),  # 2
    Part.ArcOfCircle(Part.Circle(App.Vector(-40.6, -0.5, 0), App.Vector(0, 0, 1), 1.6), math.radians(0), math.radians(180)),  # 3
    Part.LineSegment(App.Vector(-42.2, 16.2, 0), App.Vector(-42.2, 7.1, 0)),  # 4
    Part.ArcOfCircle(Part.Circle(App.Vector(-40.6, 7.1, 0), App.Vector(0, 0, 1), 1.6), math.radians(180), math.radians(360)),  # 5
    Part.LineSegment(App.Vector(-39.1, 7.1, 0), App.Vector(-39.1, 16.2, 0)),  # 6
    Part.ArcOfCircle(Part.Circle(App.Vector(-40.6, 16.2, 0), App.Vector(0, 0, 1), 1.6), math.radians(0), math.radians(180)),  # 7
    Part.LineSegment(App.Vector(-36, -0.5, 0), App.Vector(-36, -9.5, 0)),  # 8
    Part.ArcOfCircle(Part.Circle(App.Vector(-34.4, -9.5, 0), App.Vector(0, 0, 1), 1.6), math.radians(180), math.radians(360)),  # 9
    Part.LineSegment(App.Vector(-32.8, -9.5, 0), App.Vector(-32.8, -0.5, 0)),  # 10
    Part.ArcOfCircle(Part.Circle(App.Vector(-34.4, -0.5, 0), App.Vector(0, 0, 1), 1.6), math.radians(0), math.radians(180)),  # 11
    Part.LineSegment(App.Vector(-36, 16.2, 0), App.Vector(-36, 7.1, 0)),  # 12
    Part.ArcOfCircle(Part.Circle(App.Vector(-34.4, 7.1, 0), App.Vector(0, 0, 1), 1.6), math.radians(180), math.radians(360)),  # 13
    Part.LineSegment(App.Vector(-32.8, 7.1, 0), App.Vector(-32.8, 16.2, 0)),  # 14
    Part.ArcOfCircle(Part.Circle(App.Vector(-34.4, 16.2, 0), App.Vector(0, 0, 1), 1.6), math.radians(0), math.radians(180)),  # 15
    Part.LineSegment(App.Vector(-29.7, -0.5, 0), App.Vector(-29.7, -9.5, 0)),  # 16
    Part.ArcOfCircle(Part.Circle(App.Vector(-28.1, -9.5, 0), App.Vector(0, 0, 1), 1.6), math.radians(180), math.radians(360)),  # 17
    Part.LineSegment(App.Vector(-26.5, -9.5, 0), App.Vector(-26.5, -0.5, 0)),  # 18
    Part.ArcOfCircle(Part.Circle(App.Vector(-28.1, -0.5, 0), App.Vector(0, 0, 1), 1.6), math.radians(0), math.radians(180)),  # 19
    Part.LineSegment(App.Vector(-29.7, 16.2, 0), App.Vector(-29.7, 7.1, 0)),  # 20
    Part.ArcOfCircle(Part.Circle(App.Vector(-28.1, 7.1, 0), App.Vector(0, 0, 1), 1.6), math.radians(180), math.radians(360)),  # 21
    Part.LineSegment(App.Vector(-26.5, 7.1, 0), App.Vector(-26.5, 16.2, 0)),  # 22
    Part.ArcOfCircle(Part.Circle(App.Vector(-28.1, 16.2, 0), App.Vector(0, 0, 1), 1.6), math.radians(0), math.radians(180)),  # 23
    Part.LineSegment(App.Vector(-23.5, -0.5, 0), App.Vector(-23.5, -9.5, 0)),  # 24
    Part.ArcOfCircle(Part.Circle(App.Vector(-21.9, -9.5, 0), App.Vector(0, 0, 1), 1.6), math.radians(180), math.radians(360)),  # 25
    Part.LineSegment(App.Vector(-20.3, -9.5, 0), App.Vector(-20.3, -0.5, 0)),  # 26
    Part.ArcOfCircle(Part.Circle(App.Vector(-21.9, -0.5, 0), App.Vector(0, 0, 1), 1.6), math.radians(0), math.radians(180)),  # 27
    Part.LineSegment(App.Vector(-23.5, 16.2, 0), App.Vector(-23.5, 7.1, 0)),  # 28
    Part.ArcOfCircle(Part.Circle(App.Vector(-21.9, 7.1, 0), App.Vector(0, 0, 1), 1.6), math.radians(180), math.radians(360)),  # 29
    Part.LineSegment(App.Vector(-20.3, 7.1, 0), App.Vector(-20.3, 16.2, 0)),  # 30
    Part.ArcOfCircle(Part.Circle(App.Vector(-21.9, 16.2, 0), App.Vector(0, 0, 1), 1.6), math.radians(0), math.radians(180)),  # 31
    Part.LineSegment(App.Vector(-17.2, -0.5, 0), App.Vector(-17.2, -9.5, 0)),  # 32
    Part.ArcOfCircle(Part.Circle(App.Vector(-15.6, -9.5, 0), App.Vector(0, 0, 1), 1.6), math.radians(180), math.radians(360)),  # 33
    Part.LineSegment(App.Vector(-14, -9.5, 0), App.Vector(-14, -0.5, 0)),  # 34
    Part.ArcOfCircle(Part.Circle(App.Vector(-15.6, -0.5, 0), App.Vector(0, 0, 1), 1.6), math.radians(0), math.radians(180)),  # 35
    Part.LineSegment(App.Vector(-17.2, 16.2, 0), App.Vector(-17.2, 7.1, 0)),  # 36
    Part.ArcOfCircle(Part.Circle(App.Vector(-15.6, 7.1, 0), App.Vector(0, 0, 1), 1.6), math.radians(180), math.radians(360)),  # 37
    Part.LineSegment(App.Vector(-14, 7.1, 0), App.Vector(-14, 16.2, 0)),  # 38
    Part.ArcOfCircle(Part.Circle(App.Vector(-15.6, 16.2, 0), App.Vector(0, 0, 1), 1.6), math.radians(0), math.radians(180)),  # 39
], False)
sketch6.addConstraint([
    Sketcher.Constraint("Tangent", 0, 2, 1, 1),
    Sketcher.Constraint("Tangent", 1, 2, 2, 1),
    Sketcher.Constraint("Tangent", 2, 2, 3, 1),
    Sketcher.Constraint("Tangent", 3, 2, 0, 1),
    Sketcher.Constraint("Tangent", 4, 2, 5, 1),
    Sketcher.Constraint("Tangent", 5, 2, 6, 1),
    Sketcher.Constraint("Tangent", 6, 2, 7, 1),
    Sketcher.Constraint("Tangent", 7, 2, 4, 1),
    Sketcher.Constraint("Tangent", 8, 2, 9, 1),
    Sketcher.Constraint("Tangent", 9, 2, 10, 1),
    Sketcher.Constraint("Tangent", 10, 2, 11, 1),
    Sketcher.Constraint("Tangent", 11, 2, 8, 1),
    Sketcher.Constraint("Tangent", 12, 2, 13, 1),
    Sketcher.Constraint("Tangent", 13, 2, 14, 1),
    Sketcher.Constraint("Tangent", 14, 2, 15, 1),
    Sketcher.Constraint("Tangent", 15, 2, 12, 1),
    Sketcher.Constraint("Tangent", 16, 2, 17, 1),
    Sketcher.Constraint("Tangent", 17, 2, 18, 1),
    Sketcher.Constraint("Tangent", 18, 2, 19, 1),
    Sketcher.Constraint("Tangent", 19, 2, 16, 1),
    Sketcher.Constraint("Tangent", 20, 2, 21, 1),
    Sketcher.Constraint("Tangent", 21, 2, 22, 1),
    Sketcher.Constraint("Tangent", 22, 2, 23, 1),
    Sketcher.Constraint("Tangent", 23, 2, 20, 1),
    Sketcher.Constraint("Tangent", 24, 2, 25, 1),
    Sketcher.Constraint("Tangent", 25, 2, 26, 1),
    Sketcher.Constraint("Tangent", 26, 2, 27, 1),
    Sketcher.Constraint("Tangent", 27, 2, 24, 1),
    Sketcher.Constraint("Tangent", 28, 2, 29, 1),
    Sketcher.Constraint("Tangent", 29, 2, 30, 1),
    Sketcher.Constraint("Tangent", 30, 2, 31, 1),
    Sketcher.Constraint("Tangent", 31, 2, 28, 1),
    Sketcher.Constraint("Tangent", 32, 2, 33, 1),
    Sketcher.Constraint("Tangent", 33, 2, 34, 1),
    Sketcher.Constraint("Tangent", 34, 2, 35, 1),
    Sketcher.Constraint("Tangent", 35, 2, 32, 1),
    Sketcher.Constraint("Tangent", 36, 2, 37, 1),
    Sketcher.Constraint("Tangent", 37, 2, 38, 1),
    Sketcher.Constraint("Tangent", 38, 2, 39, 1),
    Sketcher.Constraint("Tangent", 39, 2, 36, 1),
    Sketcher.Constraint("Vertical", 0),
    Sketcher.Constraint("Vertical", 2),
    Sketcher.Constraint("Vertical", 4),
    Sketcher.Constraint("Vertical", 6),
    Sketcher.Constraint("Vertical", 8),
    Sketcher.Constraint("Vertical", 10),
    Sketcher.Constraint("Vertical", 12),
    Sketcher.Constraint("Vertical", 14),
    Sketcher.Constraint("Vertical", 16),
    Sketcher.Constraint("Vertical", 18),
    Sketcher.Constraint("Vertical", 20),
    Sketcher.Constraint("Vertical", 22),
    Sketcher.Constraint("Vertical", 24),
    Sketcher.Constraint("Vertical", 26),
    Sketcher.Constraint("Vertical", 28),
    Sketcher.Constraint("Vertical", 30),
    Sketcher.Constraint("Vertical", 32),
    Sketcher.Constraint("Vertical", 34),
    Sketcher.Constraint("Vertical", 36),
    Sketcher.Constraint("Vertical", 38),
    Sketcher.Constraint("Equal", 3, 5),
    Sketcher.Constraint("Equal", 7, 9),
    Sketcher.Constraint("Equal", 11, 13),
    Sketcher.Constraint("Equal", 15, 17),
    Sketcher.Constraint("Equal", 19, 21),
    Sketcher.Constraint("Equal", 23, 25),
    Sketcher.Constraint("Equal", 27, 29),
    Sketcher.Constraint("Equal", 31, 33),
    Sketcher.Constraint("Equal", 35, 37),
    Sketcher.Constraint("Horizontal", 1, 3, 9, 3),
    Sketcher.Constraint("Horizontal", 3, 3, 11, 3),
    Sketcher.Constraint("Horizontal", 5, 3, 13, 3),
    Sketcher.Constraint("Horizontal", 7, 3, 15, 3),
    Sketcher.Constraint("Horizontal", 9, 3, 17, 3),
    Sketcher.Constraint("Horizontal", 11, 3, 19, 3),
    Sketcher.Constraint("Horizontal", 13, 3, 21, 3),
    Sketcher.Constraint("Horizontal", 15, 3, 23, 3),
    Sketcher.Constraint("Horizontal", 17, 3, 25, 3),
    Sketcher.Constraint("Horizontal", 19, 3, 27, 3),
    Sketcher.Constraint("Horizontal", 21, 3, 29, 3),
    Sketcher.Constraint("Horizontal", 23, 3, 31, 3),
    Sketcher.Constraint("Horizontal", 25, 3, 33, 3),
    Sketcher.Constraint("Horizontal", 27, 3, 35, 3),
    Sketcher.Constraint("Horizontal", 29, 3, 37, 3),
    Sketcher.Constraint("Horizontal", 31, 3, 39, 3),
    Sketcher.Constraint("Vertical", 3, 3, 5, 3),
    Sketcher.Constraint("Vertical", 11, 3, 13, 3),
    Sketcher.Constraint("Vertical", 19, 3, 21, 3),
    Sketcher.Constraint("Vertical", 27, 3, 29, 3),
    Sketcher.Constraint("Vertical", 35, 3, 37, 3),
    Sketcher.Constraint("Equal", 2, 4),
    Sketcher.Constraint("Radius", 1, Q("0.0625 in")),
    Sketcher.Constraint("DistanceX", 1, 3, -1, 1, Q("1.6 in")),
    Sketcher.Constraint("DistanceY", 3, 3, 5, 3, Q("0.3 in")),
    Sketcher.Constraint("DistanceY", 0, 2, 0, 1, Q("0.3565 in")),
    Sketcher.Constraint("DistanceY", 3, 3, -1, 1, Q("0.019 in")),
    Sketcher.Constraint("DistanceX", 33, 3, -1, 1, Q("15.630769 mm")),
    Sketcher.Constraint("DistanceX", 9, 3, -1, 1, Q("34.387692 mm")),
    Sketcher.Constraint("DistanceX", 17, 3, -1, 1, Q("28.135385 mm")),
    Sketcher.Constraint("DistanceX", 25, 3, -1, 1, Q("21.883077 mm")),
])
pocket5 = body.newObject("PartDesign::Pocket", "Pocket004")
pocket5.Profile = sketch6
pocket5.Type = "ThroughAll"
doc.recompute()

fillet2 = body.newObject("PartDesign::Fillet", "Fillet001")
fillet2.Base = (pocket5, edges_at(pocket5, [
    (-10.765, -11.125, 1.27),
    (-10.765, 2.845, 1.27),
    (5.745, 2.845, 1.27),
    (5.745, -11.125, 1.27),
    (26.239, -11.125, 1.27),
    (26.239, 5.893, 1.27),
    (42.241, 5.893, 1.27),
    (42.241, -11.125, 1.27),
    (8.239, -11.125, 1.27),
    (8.239, 5.893, 1.27),
    (24.241, 5.893, 1.27),
    (24.241, -11.125, 1.27),
]))
fillet2.Radius = Q("0.01 in")
doc.recompute()

chamfer = body.newObject("PartDesign::Chamfer", "Chamfer")
chamfer.Base = (fillet2, edges_at(fillet2, [
    (16.24, 5.893, 0),
    (24.241, -2.616, 0),
    (34.24, 5.893, 0),
    (42.241, -2.616, 0),
    (16.24, -11.125, 0),
    (34.24, -11.125, 0),
    (8.239, -2.616, 0),
    (26.239, -2.616, 0),
    (-2.51, -11.125, 0),
    (-10.765, -4.14, 0),
    (-2.51, 2.845, 0),
    (5.745, -4.14, 0),
    (24.167, 5.818, 0),
    (42.167, 5.818, 0),
    (24.167, -11.051, 0),
    (42.167, -11.051, 0),
    (8.313, -11.051, 0),
    (26.313, -11.051, 0),
    (-10.691, -11.051, 0),
    (8.313, 5.818, 0),
    (26.313, 5.818, 0),
    (-10.691, 2.77, 0),
    (5.671, 2.77, 0),
    (5.671, -11.051, 0),
]))
chamfer.Size = Q("0.02 in")
doc.recompute()

chamfer2 = body.newObject("PartDesign::Chamfer", "Chamfer001")
chamfer2.Base = (chamfer, edges_at(chamfer, [
    (40.64, 7.798, 2.54),
    (42.227, 12.789, 2.54),
    (40.64, 17.78, 2.54),
    (39.053, 12.789, 2.54),
    (34.388, 7.798, 2.54),
    (35.975, 12.789, 2.54),
    (34.388, 17.78, 2.54),
    (32.8, 12.789, 2.54),
    (28.135, 7.798, 2.54),
    (29.723, 12.789, 2.54),
    (28.135, 17.78, 2.54),
    (26.548, 12.789, 2.54),
    (21.883, 7.798, 2.54),
    (23.471, 12.789, 2.54),
    (21.883, 17.78, 2.54),
    (20.296, 12.789, 2.54),
    (15.631, 7.798, 2.54),
    (17.218, 12.789, 2.54),
    (15.631, 17.78, 2.54),
    (14.043, 12.789, 2.54),
    (3.126, 7.798, 2.54),
    (4.714, 9.617, 2.54),
    (3.126, 11.437, 2.54),
    (1.539, 9.617, 2.54),
    (-3.126, 7.798, 2.54),
    (-1.539, 9.617, 2.54),
    (-3.126, 11.437, 2.54),
    (-4.714, 9.617, 2.54),
    (-9.378, 7.798, 2.54),
    (-7.791, 12.789, 2.54),
    (-9.378, 17.78, 2.54),
    (-10.966, 12.789, 2.54),
    (9.378, 7.798, 2.54),
    (10.966, 12.789, 2.54),
    (9.378, 17.78, 2.54),
    (7.791, 12.789, 2.54),
    (-14.043, 11.665, 2.54),
    (-15.631, 17.78, 2.54),
    (-17.218, 11.665, 2.54),
    (-20.296, 11.665, 2.54),
    (-21.883, 17.78, 2.54),
    (-23.471, 11.665, 2.54),
    (-26.548, 11.665, 2.54),
    (-28.135, 17.78, 2.54),
    (-29.723, 11.665, 2.54),
    (-32.8, 11.665, 2.54),
    (-34.388, 17.78, 2.54),
    (-35.975, 11.665, 2.54),
    (-39.053, 11.665, 2.54),
    (-40.64, 17.78, 2.54),
    (-42.227, 11.665, 2.54),
    (-28.135, 5.55, 2.54),
    (0, 20.955, 2.54),
    (-21.883, -11.125, 2.54),
    (-20.296, -5.01, 2.54),
    (-21.883, 1.105, 2.54),
    (-23.471, -5.01, 2.54),
    (-21.883, 5.55, 2.54),
    (-15.631, -11.125, 2.54),
    (-14.043, -5.01, 2.54),
    (-15.631, 1.105, 2.54),
    (-17.218, -5.01, 2.54),
    (-40.64, 5.55, 2.54),
    (-34.388, -11.125, 2.54),
    (-32.8, -5.01, 2.54),
    (-34.388, 1.105, 2.54),
    (-35.975, -5.01, 2.54),
    (-34.388, 5.55, 2.54),
    (-28.135, -11.125, 2.54),
    (-26.548, -5.01, 2.54),
    (-28.135, 1.105, 2.54),
    (-29.723, -5.01, 2.54),
    (54.61, 0, 2.54),
    (-15.631, 5.55, 2.54),
    (-40.64, -11.125, 2.54),
    (-39.053, -5.01, 2.54),
    (-40.64, 1.105, 2.54),
    (-42.227, -5.01, 2.54),
    (-54.61, 0, 2.54),
    (0, -20.955, 2.54),
    (-53.866, 20.211, 2.54),
    (-53.866, -20.211, 2.54),
    (53.866, -20.211, 2.54),
    (53.866, 20.211, 2.54),
    (16.24, 5.893, 2.54),
    (24.241, -2.616, 2.54),
    (34.24, 5.893, 2.54),
    (42.241, -2.616, 2.54),
    (16.24, -11.125, 2.54),
    (34.24, -11.125, 2.54),
    (8.239, -2.616, 2.54),
    (26.239, -2.616, 2.54),
    (-2.51, -11.125, 2.54),
    (-10.765, -4.14, 2.54),
    (-2.51, 2.845, 2.54),
    (5.745, -4.14, 2.54),
    (24.167, 5.818, 2.54),
    (42.167, 5.818, 2.54),
    (24.167, -11.051, 2.54),
    (42.167, -11.051, 2.54),
    (8.313, -11.051, 2.54),
    (26.313, -11.051, 2.54),
    (-10.691, -11.051, 2.54),
    (8.313, 5.818, 2.54),
    (26.313, 5.818, 2.54),
    (-10.691, 2.77, 2.54),
    (5.671, 2.77, 2.54),
    (5.671, -11.051, 2.54),
]))
chamfer2.Size = Q("0.02 in")

doc.recompute()
